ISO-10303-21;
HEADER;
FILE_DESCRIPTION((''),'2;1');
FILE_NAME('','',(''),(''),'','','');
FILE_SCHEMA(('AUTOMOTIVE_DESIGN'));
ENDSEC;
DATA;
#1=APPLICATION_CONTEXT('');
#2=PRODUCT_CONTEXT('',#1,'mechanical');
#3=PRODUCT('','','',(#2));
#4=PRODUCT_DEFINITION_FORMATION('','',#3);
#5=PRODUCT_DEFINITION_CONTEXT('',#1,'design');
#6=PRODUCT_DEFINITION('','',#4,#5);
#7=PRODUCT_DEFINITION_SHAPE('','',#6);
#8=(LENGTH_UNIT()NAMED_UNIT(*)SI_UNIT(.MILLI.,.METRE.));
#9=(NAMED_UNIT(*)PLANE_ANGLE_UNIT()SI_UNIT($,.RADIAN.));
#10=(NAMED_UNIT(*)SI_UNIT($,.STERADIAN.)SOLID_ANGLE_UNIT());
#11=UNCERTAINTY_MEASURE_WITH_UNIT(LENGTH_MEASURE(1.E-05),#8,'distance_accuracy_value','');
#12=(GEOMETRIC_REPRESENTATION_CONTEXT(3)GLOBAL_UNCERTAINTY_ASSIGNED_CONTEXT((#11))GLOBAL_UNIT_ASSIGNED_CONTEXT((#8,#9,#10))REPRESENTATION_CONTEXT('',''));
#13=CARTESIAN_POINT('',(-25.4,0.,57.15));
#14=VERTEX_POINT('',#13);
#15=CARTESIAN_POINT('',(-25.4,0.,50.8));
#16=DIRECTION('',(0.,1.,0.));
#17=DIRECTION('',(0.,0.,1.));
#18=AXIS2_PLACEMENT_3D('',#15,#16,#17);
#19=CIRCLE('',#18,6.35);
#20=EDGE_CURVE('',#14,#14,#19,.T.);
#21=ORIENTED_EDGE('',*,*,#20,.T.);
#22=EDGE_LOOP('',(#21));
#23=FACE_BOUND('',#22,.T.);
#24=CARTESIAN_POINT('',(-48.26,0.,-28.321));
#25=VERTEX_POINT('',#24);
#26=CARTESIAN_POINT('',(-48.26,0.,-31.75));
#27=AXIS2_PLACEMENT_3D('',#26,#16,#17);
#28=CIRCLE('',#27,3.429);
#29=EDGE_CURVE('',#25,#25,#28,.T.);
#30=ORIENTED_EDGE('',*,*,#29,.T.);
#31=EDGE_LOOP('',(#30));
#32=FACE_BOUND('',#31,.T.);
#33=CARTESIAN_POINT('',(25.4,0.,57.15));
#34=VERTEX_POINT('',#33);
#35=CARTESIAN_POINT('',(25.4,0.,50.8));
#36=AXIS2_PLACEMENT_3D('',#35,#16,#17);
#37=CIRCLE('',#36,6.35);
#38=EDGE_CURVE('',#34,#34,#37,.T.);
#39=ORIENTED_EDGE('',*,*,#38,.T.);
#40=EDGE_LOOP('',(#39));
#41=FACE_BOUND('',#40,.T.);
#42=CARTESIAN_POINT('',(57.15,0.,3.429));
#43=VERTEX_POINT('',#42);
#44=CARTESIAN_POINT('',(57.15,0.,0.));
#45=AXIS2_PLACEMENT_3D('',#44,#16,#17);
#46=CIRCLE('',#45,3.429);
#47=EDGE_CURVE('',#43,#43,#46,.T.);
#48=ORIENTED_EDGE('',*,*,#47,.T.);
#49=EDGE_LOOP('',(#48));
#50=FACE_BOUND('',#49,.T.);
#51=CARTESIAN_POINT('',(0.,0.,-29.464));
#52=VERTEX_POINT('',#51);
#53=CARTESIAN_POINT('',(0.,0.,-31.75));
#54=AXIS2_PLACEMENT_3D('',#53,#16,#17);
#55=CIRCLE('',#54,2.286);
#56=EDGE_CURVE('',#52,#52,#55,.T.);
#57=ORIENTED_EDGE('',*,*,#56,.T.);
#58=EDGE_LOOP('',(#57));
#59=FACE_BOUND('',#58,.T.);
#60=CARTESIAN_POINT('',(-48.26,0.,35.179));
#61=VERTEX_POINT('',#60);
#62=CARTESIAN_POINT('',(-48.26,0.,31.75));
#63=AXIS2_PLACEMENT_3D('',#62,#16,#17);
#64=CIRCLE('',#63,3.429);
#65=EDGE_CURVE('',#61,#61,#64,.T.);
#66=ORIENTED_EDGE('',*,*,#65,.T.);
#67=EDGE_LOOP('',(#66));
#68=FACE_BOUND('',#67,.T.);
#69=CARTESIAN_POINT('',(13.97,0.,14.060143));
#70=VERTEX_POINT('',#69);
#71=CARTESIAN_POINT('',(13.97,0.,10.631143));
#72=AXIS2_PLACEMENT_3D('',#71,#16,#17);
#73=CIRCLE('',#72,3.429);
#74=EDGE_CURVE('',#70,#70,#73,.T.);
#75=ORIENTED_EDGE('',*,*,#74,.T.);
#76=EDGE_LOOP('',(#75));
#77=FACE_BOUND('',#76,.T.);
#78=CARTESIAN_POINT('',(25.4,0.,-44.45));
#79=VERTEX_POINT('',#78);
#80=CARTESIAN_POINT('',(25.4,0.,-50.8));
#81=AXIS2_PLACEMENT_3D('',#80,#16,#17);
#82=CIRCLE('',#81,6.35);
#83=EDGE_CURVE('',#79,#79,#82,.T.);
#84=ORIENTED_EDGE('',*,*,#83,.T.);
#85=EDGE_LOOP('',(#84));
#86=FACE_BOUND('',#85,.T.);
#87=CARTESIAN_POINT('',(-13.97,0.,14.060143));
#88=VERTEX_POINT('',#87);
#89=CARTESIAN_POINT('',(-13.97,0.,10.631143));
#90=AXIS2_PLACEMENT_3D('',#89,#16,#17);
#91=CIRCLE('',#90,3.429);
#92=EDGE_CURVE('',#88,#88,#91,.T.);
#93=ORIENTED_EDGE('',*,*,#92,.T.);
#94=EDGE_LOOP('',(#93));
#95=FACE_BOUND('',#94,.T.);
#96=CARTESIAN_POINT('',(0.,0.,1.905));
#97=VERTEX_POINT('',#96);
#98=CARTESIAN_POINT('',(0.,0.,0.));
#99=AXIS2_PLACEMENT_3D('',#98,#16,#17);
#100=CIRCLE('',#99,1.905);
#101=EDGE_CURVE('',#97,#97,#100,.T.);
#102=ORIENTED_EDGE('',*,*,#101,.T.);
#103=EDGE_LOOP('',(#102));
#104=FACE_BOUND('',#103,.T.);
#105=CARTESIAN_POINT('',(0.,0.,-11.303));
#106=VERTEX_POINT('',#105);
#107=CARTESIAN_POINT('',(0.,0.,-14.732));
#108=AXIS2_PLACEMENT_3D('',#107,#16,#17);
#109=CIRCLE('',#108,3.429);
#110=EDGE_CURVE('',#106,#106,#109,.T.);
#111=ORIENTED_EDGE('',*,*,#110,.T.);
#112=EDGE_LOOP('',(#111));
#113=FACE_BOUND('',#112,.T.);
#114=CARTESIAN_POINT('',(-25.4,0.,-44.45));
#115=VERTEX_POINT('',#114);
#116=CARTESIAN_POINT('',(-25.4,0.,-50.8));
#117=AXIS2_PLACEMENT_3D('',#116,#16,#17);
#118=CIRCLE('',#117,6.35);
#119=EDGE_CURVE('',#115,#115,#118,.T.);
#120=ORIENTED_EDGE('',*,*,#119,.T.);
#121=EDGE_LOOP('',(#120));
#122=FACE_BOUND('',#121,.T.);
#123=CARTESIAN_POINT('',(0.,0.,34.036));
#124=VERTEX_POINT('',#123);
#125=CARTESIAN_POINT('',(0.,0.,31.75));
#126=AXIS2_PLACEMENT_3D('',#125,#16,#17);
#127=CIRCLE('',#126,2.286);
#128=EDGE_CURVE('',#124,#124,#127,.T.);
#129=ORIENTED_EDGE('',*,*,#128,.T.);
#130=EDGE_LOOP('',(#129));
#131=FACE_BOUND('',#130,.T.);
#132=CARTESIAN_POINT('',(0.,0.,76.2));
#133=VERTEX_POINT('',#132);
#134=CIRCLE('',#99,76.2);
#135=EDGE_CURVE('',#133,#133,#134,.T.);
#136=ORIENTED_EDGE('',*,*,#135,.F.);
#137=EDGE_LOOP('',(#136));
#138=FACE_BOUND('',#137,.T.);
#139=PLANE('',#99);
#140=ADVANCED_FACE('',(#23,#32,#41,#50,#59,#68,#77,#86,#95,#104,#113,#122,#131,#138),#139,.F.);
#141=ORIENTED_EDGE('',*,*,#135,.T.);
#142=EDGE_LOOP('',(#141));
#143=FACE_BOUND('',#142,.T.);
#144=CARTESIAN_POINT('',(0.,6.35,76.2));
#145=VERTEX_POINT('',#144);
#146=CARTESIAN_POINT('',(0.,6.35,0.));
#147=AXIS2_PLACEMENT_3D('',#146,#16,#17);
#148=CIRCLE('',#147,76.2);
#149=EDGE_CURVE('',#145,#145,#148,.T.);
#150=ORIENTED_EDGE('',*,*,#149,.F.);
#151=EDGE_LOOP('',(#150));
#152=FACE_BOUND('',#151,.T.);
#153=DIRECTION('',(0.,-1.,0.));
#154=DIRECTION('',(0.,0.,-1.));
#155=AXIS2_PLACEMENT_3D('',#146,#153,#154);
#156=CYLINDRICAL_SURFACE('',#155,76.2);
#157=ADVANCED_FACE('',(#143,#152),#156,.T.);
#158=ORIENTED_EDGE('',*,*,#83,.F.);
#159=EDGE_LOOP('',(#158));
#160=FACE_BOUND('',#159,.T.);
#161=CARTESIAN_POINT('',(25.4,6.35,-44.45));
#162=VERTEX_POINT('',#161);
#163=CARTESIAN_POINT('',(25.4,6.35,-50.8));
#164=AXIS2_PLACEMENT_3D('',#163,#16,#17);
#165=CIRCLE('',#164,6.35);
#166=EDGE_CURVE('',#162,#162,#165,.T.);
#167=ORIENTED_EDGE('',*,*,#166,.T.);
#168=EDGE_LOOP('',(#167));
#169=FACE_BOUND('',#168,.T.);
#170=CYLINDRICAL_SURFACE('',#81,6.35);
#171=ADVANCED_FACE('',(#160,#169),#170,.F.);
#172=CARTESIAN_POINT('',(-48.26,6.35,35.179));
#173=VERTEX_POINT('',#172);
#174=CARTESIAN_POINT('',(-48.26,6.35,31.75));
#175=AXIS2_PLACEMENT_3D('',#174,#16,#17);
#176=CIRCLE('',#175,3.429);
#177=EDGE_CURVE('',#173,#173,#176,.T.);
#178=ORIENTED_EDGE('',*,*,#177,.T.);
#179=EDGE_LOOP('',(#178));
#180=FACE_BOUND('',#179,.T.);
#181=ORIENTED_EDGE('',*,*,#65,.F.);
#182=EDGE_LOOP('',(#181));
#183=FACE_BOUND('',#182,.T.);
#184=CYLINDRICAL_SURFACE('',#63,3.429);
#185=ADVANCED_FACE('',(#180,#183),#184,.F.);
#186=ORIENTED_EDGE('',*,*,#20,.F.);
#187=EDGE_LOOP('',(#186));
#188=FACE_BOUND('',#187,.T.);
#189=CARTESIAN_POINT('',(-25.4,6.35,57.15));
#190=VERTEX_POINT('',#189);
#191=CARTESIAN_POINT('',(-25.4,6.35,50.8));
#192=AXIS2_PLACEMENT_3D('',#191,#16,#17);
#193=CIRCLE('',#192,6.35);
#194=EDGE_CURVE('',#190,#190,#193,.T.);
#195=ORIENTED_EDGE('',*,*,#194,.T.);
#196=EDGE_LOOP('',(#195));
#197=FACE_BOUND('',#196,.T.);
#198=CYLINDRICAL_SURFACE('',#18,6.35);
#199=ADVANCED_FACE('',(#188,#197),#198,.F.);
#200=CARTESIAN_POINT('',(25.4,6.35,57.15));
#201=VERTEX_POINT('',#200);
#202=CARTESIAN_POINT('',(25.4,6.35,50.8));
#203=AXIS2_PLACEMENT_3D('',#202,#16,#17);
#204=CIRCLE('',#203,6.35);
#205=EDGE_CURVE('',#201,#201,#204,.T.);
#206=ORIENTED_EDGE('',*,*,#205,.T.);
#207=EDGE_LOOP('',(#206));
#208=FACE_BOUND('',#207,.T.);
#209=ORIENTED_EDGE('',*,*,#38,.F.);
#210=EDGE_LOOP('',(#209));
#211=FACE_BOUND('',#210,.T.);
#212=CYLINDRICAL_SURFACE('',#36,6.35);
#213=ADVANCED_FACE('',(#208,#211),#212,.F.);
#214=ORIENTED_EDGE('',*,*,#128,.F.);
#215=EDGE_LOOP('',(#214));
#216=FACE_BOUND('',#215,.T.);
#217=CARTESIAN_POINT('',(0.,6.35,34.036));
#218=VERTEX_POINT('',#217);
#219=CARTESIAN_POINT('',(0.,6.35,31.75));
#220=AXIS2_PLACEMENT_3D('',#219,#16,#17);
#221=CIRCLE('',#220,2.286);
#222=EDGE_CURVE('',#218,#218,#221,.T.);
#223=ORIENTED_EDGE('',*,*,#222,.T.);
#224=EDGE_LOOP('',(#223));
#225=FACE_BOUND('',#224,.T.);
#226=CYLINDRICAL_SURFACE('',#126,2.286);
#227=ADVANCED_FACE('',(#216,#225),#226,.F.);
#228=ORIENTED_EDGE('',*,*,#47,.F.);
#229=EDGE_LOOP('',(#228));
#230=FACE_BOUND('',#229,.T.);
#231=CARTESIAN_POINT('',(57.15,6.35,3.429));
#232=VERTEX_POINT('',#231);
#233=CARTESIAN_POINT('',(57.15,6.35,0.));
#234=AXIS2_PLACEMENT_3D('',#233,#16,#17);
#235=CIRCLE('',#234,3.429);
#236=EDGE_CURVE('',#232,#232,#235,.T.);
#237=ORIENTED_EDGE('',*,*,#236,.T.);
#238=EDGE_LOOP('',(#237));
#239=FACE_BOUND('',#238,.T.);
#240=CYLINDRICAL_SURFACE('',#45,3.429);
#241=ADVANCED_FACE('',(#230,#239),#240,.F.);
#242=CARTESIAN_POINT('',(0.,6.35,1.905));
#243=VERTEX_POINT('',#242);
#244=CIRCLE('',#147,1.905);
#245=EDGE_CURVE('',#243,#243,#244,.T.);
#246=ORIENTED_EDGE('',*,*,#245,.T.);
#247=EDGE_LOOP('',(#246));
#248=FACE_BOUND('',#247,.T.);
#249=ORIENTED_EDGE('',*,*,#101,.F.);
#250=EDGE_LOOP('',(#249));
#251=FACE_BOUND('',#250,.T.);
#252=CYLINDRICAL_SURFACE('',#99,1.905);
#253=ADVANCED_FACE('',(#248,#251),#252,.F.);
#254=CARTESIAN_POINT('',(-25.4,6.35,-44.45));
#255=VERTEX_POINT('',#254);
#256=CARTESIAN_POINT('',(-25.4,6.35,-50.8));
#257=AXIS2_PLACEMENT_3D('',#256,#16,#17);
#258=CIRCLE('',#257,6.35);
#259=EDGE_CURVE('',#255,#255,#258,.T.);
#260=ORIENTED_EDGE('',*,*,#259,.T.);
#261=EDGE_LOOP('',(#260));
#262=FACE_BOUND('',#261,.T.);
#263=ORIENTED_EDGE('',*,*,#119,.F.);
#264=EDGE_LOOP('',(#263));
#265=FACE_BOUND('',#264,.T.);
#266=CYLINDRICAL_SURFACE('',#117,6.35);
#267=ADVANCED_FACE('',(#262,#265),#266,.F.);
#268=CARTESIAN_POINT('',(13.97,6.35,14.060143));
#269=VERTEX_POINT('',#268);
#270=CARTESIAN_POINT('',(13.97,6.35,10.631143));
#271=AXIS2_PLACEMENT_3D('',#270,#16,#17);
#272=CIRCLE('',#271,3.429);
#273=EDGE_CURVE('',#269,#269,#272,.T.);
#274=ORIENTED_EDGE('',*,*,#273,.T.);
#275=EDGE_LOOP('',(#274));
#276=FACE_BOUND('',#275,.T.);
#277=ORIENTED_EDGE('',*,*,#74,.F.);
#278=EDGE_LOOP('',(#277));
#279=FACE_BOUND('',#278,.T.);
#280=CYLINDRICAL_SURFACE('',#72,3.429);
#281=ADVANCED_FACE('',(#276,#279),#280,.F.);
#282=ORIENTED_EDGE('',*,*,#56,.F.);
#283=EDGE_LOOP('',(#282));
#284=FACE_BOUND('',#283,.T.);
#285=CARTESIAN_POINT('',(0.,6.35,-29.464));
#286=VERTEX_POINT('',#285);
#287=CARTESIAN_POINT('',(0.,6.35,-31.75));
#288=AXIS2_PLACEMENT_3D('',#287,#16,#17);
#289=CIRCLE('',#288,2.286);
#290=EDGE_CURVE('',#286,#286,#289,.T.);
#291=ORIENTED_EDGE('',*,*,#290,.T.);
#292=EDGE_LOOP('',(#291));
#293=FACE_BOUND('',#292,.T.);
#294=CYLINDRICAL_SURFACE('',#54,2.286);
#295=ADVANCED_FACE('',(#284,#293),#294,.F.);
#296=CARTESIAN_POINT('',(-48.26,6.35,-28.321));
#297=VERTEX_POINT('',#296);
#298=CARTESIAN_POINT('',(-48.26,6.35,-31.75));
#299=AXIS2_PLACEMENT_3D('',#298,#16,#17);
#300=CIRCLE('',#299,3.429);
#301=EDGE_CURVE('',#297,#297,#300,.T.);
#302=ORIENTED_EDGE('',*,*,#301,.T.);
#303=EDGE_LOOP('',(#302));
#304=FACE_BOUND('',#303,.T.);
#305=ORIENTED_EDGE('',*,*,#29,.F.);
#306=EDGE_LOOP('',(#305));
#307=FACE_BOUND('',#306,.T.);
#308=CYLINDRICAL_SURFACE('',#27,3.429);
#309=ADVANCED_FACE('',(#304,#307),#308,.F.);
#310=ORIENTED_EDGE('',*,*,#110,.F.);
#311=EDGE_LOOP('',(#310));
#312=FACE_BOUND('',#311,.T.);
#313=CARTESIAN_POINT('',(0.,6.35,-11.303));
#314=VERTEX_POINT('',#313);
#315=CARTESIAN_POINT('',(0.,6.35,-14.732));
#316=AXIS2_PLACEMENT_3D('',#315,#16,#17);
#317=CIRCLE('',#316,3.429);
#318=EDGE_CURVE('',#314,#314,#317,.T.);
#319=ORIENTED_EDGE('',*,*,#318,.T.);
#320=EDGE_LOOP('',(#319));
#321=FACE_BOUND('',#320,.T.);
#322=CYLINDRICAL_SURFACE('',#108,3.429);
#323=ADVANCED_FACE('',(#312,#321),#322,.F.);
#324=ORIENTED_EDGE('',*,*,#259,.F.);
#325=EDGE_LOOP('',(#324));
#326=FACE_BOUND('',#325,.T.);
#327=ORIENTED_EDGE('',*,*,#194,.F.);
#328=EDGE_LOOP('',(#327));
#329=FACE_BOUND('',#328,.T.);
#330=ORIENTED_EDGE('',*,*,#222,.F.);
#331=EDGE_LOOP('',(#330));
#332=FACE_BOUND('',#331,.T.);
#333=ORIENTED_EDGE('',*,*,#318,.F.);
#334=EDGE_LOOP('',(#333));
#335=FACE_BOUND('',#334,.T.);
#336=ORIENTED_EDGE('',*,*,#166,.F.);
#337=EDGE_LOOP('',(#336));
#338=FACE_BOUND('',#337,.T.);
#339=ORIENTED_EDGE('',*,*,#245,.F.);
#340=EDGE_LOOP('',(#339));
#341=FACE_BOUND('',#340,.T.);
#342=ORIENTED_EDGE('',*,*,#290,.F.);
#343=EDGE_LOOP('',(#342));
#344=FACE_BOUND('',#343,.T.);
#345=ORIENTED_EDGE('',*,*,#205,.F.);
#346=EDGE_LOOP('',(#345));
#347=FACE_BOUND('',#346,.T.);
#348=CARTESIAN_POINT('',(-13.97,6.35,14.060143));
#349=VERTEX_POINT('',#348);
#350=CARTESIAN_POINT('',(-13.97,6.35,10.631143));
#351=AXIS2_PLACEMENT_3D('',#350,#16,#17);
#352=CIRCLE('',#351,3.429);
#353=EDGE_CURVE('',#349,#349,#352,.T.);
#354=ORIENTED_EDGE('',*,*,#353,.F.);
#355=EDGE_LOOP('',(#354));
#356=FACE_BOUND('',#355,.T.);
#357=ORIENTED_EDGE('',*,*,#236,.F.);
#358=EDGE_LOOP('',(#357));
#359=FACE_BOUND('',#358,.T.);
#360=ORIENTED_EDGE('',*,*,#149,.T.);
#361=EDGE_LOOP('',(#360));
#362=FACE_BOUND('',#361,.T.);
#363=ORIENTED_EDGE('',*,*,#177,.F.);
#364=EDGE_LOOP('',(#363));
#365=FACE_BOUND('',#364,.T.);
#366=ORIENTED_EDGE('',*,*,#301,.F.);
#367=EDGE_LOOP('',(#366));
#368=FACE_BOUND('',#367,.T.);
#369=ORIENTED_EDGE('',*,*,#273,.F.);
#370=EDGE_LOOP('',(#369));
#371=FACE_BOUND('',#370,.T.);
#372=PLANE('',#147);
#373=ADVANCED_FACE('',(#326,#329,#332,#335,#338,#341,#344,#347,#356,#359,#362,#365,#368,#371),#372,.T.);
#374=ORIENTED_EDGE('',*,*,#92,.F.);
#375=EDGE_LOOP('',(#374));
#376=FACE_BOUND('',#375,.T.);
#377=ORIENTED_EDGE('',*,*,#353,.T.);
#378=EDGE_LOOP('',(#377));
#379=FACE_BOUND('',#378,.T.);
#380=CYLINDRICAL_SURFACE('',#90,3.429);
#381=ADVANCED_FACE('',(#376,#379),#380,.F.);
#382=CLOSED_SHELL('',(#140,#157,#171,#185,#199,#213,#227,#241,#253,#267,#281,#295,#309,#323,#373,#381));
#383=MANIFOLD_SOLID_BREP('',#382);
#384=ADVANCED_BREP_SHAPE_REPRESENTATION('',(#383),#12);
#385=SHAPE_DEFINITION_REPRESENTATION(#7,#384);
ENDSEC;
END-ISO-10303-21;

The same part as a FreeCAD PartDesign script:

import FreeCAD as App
import Part
import Sketcher

V = App.Vector
Q = App.Units.Quantity

doc = App.newDocument("Part")
body = doc.addObject("PartDesign::Body", "Body")

# Sketch on XZ plane
sketch1 = body.newObject("Sketcher::SketchObject", "Sketch")
sketch1.AttachmentSupport = (doc.getObject("XZ_Plane"), [""])
sketch1.MapMode = "FlatFace"
sketch1.addGeometry(Part.Circle(V(0, 0, 0), V(0, 0, 1), 76), False)
sketch1.addConstraint([
    Sketcher.Constraint("Coincident", 0, 3, -1, 1),
    Sketcher.Constraint("Diameter", 0, Q("6 in")),
])
pad1 = body.newObject("PartDesign::Pad", "Pad")
pad1.Profile = sketch1
pad1.Length = Q("0.25 in")
pad1.Reversed = True

# Sketch on XZ plane
sketch2 = body.newObject("Sketcher::SketchObject", "Sketch001")
sketch2.AttachmentSupport = (doc.getObject("XZ_Plane"), [""])
sketch2.MapMode = "FlatFace"
sketch2.AttachmentOffset = App.Placement(V(0, 0, -0.25 * 25.4), App.Rotation())
sketch2.addGeometry(Part.Circle(V(0, 0, 0), V(0, 0, 1), 1.9), False)
sketch2.addConstraint([
    Sketcher.Constraint("Coincident", 0, 3, -1, 1),
    Sketcher.Constraint("Diameter", 0, Q("0.15 in")),
])
pocket1 = body.newObject("PartDesign::Pocket", "Pocket")
pocket1.Profile = sketch2
pocket1.Type = "ThroughAll"
pocket1.Reversed = True

# Sketch on XZ plane
sketch3 = body.newObject("Sketcher::SketchObject", "Sketch002")
sketch3.AttachmentSupport = (doc.getObject("XZ_Plane"), [""])
sketch3.MapMode = "FlatFace"
sketch3.AttachmentOffset = App.Placement(V(0, 0, -0.25 * 25.4), App.Rotation())
sketch3.addGeometry([
    Part.Circle(V(0, -14.7, 0), V(0, 0, 1), 3.4),
    Part.Circle(V(-14, 10.6, 0), V(0, 0, 1), 3.4),
    Part.Circle(V(14, 10.6, 0), V(0, 0, 1), 3.4),
], False)
sketch3.addConstraint([
    Sketcher.Constraint("Equal", 0, 1),
    Sketcher.Constraint("Equal", 1, 2),
    Sketcher.Constraint("Symmetric", 1, 3, 2, 3, -2),
    Sketcher.Constraint("PointOnObject", 0, 3, -2),
    Sketcher.Constraint("Diameter", 0, Q("0.27 in")),
    Sketcher.Constraint("DistanceX", 1, 3, 2, 3, Q("1.1 in")),
    Sketcher.Constraint("DistanceY", 0, 3, -1, 1, Q("0.58 in")),
    Sketcher.Constraint("DistanceY", -1, 1, 1, 3, Q("10.631143 mm")),
])
pocket2 = body.newObject("PartDesign::Pocket", "Pocket001")
pocket2.Profile = sketch3
pocket2.Type = "ThroughAll"
pocket2.Reversed = True

# Sketch on XZ plane
sketch4 = body.newObject("Sketcher::SketchObject", "Sketch003")
sketch4.AttachmentSupport = (doc.getObject("XZ_Plane"), [""])
sketch4.MapMode = "FlatFace"
sketch4.AttachmentOffset = App.Placement(V(0, 0, -0.25 * 25.4), App.Rotation())
sketch4.addGeometry([
    Part.Circle(V(-25, 51, 0), V(0, 0, 1), 6),
    Part.Circle(V(25, 51, 0), V(0, 0, 1), 6),
], False)
sketch4.addConstraint([
    Sketcher.Constraint("Equal", 0, 1),
    Sketcher.Constraint("Symmetric", 0, 3, 1, 3, -2),
    Sketcher.Constraint("Diameter", 0, Q("0.5 in")),
    Sketcher.Constraint("DistanceX", 0, 3, -1, 1, Q("1 in")),
    Sketcher.Constraint("DistanceY", -1, 1, 0, 3, Q("2 in")),
])
pocket3 = body.newObject("PartDesign::Pocket", "Pocket002")
pocket3.Profile = sketch4
pocket3.Type = "ThroughAll"
pocket3.Reversed = True

# Sketch on XZ plane
sketch5 = body.newObject("Sketcher::SketchObject", "Sketch004")
sketch5.AttachmentSupport = (doc.getObject("XZ_Plane"), [""])
sketch5.MapMode = "FlatFace"
sketch5.AttachmentOffset = App.Placement(V(0, 0, -0.25 * 25.4), App.Rotation())
sketch5.addGeometry([
    Part.Circle(V(-25, -51, 0), V(0, 0, 1), 6),
    Part.Circle(V(25, -51, 0), V(0, 0, 1), 6),
], False)
sketch5.addConstraint([
    Sketcher.Constraint("Equal", 0, 1),
    Sketcher.Constraint("Symmetric", 0, 3, 1, 3, -2),
    Sketcher.Constraint("Diameter", 0, Q("0.5 in")),
    Sketcher.Constraint("DistanceX", 0, 3, -1, 1, Q("1 in")),
    Sketcher.Constraint("DistanceY", 0, 3, -1, 1, Q("2 in")),
])
pocket4 = body.newObject("PartDesign::Pocket", "Pocket003")
pocket4.Profile = sketch5
pocket4.Type = "ThroughAll"
pocket4.Reversed = True

# Sketch on XZ plane
sketch6 = body.newObject("Sketcher::SketchObject", "Sketch005")
sketch6.AttachmentSupport = (doc.getObject("XZ_Plane"), [""])
sketch6.MapMode = "FlatFace"
sketch6.AttachmentOffset = App.Placement(V(0, 0, -0.25 * 25.4), App.Rotation())
sketch6.addGeometry([
    Part.Circle(V(0, -47, 0), V(0, 0, 1), 2.5),
    Part.Circle(V(0, 47, 0), V(0, 0, 1), 2.5),
], False)
sketch6.addConstraint([
    Sketcher.Constraint("Equal", 0, 1),
    Sketcher.Constraint("Symmetric", 0, 3, 1, 3, -1, 1),
    Sketcher.Constraint("PointOnObject", 0, 3, -2),
    Sketcher.Constraint("Diameter", 0, Q("0.2 in")),
    Sketcher.Constraint("DistanceY", 0, 3, 1, 3, Q("3.7 in")),
])
pocket5 = body.newObject("PartDesign::Pocket", "Pocket004")
pocket5.Profile = sketch6
pocket5.Type = "ThroughAll"
pocket5.Reversed = True

# Sketch on XZ plane
sketch7 = body.newObject("Sketcher::SketchObject", "Sketch006")
sketch7.AttachmentSupport = (doc.getObject("XZ_Plane"), [""])
sketch7.MapMode = "FlatFace"
sketch7.AttachmentOffset = App.Placement(V(0, 0, -0.25 * 25.4), App.Rotation())
sketch7.addGeometry(Part.Circle(V(57.1, 0, 0), V(0, 0, 1), 3.4), False)
sketch7.addConstraint([
    Sketcher.Constraint("PointOnObject", 0, 3, -1),
    Sketcher.Constraint("Diameter", 0, Q("0.27 in")),
    Sketcher.Constraint("DistanceX", -1, 1, 0, 3, Q("2.25 in")),
])
pocket6 = body.newObject("PartDesign::Pocket", "Pocket005")
pocket6.Profile = sketch7
pocket6.Type = "ThroughAll"
pocket6.Reversed = True

# Sketch on XZ plane
sketch8 = body.newObject("Sketcher::SketchObject", "Sketch007")
sketch8.AttachmentSupport = (doc.getObject("XZ_Plane"), [""])
sketch8.MapMode = "FlatFace"
sketch8.AttachmentOffset = App.Placement(V(0, 0, -0.25 * 25.4), App.Rotation())
sketch8.addGeometry([
    Part.Circle(V(-48.3, 31.8, 0), V(0, 0, 1), 3.4),
    Part.Circle(V(-48.3, -31.8, 0), V(0, 0, 1), 3.4),
], False)
sketch8.addConstraint([
    Sketcher.Constraint("Equal", 0, 1),
    Sketcher.Constraint("Symmetric", 0, 3, 1, 3, -1),
    Sketcher.Constraint("Diameter", 0, Q("0.27 in")),
    Sketcher.Constraint("DistanceX", 0, 3, -1, 1, Q("1.9 in")),
    Sketcher.Constraint("DistanceY", 1, 3, 0, 3, Q("2.5 in")),
])
pocket7 = body.newObject("PartDesign::Pocket", "Pocket006")
pocket7.Profile = sketch8
pocket7.Type = "ThroughAll"
pocket7.Reversed = True

# Sketch on XZ plane
sketch9 = body.newObject("Sketcher::SketchObject", "Sketch008")
sketch9.AttachmentSupport = (doc.getObject("XZ_Plane"), [""])
sketch9.MapMode = "FlatFace"
sketch9.AttachmentOffset = App.Placement(V(0, 0, -0.25 * 25.4), App.Rotation())
sketch9.addGeometry([
    Part.Circle(V(0, -47, 0), V(0, 0, 1), 2.5),
    Part.Circle(V(0, 47, 0), V(0, 0, 1), 2.5),
], False)
sketch9.addConstraint([
    Sketcher.Constraint("Equal", 0, 1),
    Sketcher.Constraint("Symmetric", 0, 3, 1, 3, -1, 1),
    Sketcher.Constraint("PointOnObject", 0, 3, -2),
    Sketcher.Constraint("Diameter", 0, Q("0.2 in")),
    Sketcher.Constraint("DistanceY", 0, 3, 1, 3, Q("3.7 in")),
])
pad2 = body.newObject("PartDesign::Pad", "Pad001")
pad2.Profile = sketch9
pad2.Length = Q("0.25 in")

# Sketch on XZ plane
sketch10 = body.newObject("Sketcher::SketchObject", "Sketch009")
sketch10.AttachmentSupport = (doc.getObject("XZ_Plane"), [""])
sketch10.MapMode = "FlatFace"
sketch10.AttachmentOffset = App.Placement(V(0, 0, -0.25 * 25.4), App.Rotation())
sketch10.addGeometry([
    Part.Circle(V(0, 31.8, 0), V(0, 0, 1), 2.3),
    Part.Circle(V(0, -31.8, 0), V(0, 0, 1), 2.3),
], False)
sketch10.addConstraint([
    Sketcher.Constraint("Equal", 0, 1),
    Sketcher.Constraint("Symmetric", 0, 3, 1, 3, -1, 1),
    Sketcher.Constraint("PointOnObject", 0, 3, -2),
    Sketcher.Constraint("Diameter", 0, Q("0.18 in")),
    Sketcher.Constraint("DistanceY", 1, 3, 0, 3, Q("2.5 in")),
])
pocket8 = body.newObject("PartDesign::Pocket", "Pocket007")
pocket8.Profile = sketch10
pocket8.Type = "ThroughAll"
pocket8.Reversed = True

doc.recompute()
